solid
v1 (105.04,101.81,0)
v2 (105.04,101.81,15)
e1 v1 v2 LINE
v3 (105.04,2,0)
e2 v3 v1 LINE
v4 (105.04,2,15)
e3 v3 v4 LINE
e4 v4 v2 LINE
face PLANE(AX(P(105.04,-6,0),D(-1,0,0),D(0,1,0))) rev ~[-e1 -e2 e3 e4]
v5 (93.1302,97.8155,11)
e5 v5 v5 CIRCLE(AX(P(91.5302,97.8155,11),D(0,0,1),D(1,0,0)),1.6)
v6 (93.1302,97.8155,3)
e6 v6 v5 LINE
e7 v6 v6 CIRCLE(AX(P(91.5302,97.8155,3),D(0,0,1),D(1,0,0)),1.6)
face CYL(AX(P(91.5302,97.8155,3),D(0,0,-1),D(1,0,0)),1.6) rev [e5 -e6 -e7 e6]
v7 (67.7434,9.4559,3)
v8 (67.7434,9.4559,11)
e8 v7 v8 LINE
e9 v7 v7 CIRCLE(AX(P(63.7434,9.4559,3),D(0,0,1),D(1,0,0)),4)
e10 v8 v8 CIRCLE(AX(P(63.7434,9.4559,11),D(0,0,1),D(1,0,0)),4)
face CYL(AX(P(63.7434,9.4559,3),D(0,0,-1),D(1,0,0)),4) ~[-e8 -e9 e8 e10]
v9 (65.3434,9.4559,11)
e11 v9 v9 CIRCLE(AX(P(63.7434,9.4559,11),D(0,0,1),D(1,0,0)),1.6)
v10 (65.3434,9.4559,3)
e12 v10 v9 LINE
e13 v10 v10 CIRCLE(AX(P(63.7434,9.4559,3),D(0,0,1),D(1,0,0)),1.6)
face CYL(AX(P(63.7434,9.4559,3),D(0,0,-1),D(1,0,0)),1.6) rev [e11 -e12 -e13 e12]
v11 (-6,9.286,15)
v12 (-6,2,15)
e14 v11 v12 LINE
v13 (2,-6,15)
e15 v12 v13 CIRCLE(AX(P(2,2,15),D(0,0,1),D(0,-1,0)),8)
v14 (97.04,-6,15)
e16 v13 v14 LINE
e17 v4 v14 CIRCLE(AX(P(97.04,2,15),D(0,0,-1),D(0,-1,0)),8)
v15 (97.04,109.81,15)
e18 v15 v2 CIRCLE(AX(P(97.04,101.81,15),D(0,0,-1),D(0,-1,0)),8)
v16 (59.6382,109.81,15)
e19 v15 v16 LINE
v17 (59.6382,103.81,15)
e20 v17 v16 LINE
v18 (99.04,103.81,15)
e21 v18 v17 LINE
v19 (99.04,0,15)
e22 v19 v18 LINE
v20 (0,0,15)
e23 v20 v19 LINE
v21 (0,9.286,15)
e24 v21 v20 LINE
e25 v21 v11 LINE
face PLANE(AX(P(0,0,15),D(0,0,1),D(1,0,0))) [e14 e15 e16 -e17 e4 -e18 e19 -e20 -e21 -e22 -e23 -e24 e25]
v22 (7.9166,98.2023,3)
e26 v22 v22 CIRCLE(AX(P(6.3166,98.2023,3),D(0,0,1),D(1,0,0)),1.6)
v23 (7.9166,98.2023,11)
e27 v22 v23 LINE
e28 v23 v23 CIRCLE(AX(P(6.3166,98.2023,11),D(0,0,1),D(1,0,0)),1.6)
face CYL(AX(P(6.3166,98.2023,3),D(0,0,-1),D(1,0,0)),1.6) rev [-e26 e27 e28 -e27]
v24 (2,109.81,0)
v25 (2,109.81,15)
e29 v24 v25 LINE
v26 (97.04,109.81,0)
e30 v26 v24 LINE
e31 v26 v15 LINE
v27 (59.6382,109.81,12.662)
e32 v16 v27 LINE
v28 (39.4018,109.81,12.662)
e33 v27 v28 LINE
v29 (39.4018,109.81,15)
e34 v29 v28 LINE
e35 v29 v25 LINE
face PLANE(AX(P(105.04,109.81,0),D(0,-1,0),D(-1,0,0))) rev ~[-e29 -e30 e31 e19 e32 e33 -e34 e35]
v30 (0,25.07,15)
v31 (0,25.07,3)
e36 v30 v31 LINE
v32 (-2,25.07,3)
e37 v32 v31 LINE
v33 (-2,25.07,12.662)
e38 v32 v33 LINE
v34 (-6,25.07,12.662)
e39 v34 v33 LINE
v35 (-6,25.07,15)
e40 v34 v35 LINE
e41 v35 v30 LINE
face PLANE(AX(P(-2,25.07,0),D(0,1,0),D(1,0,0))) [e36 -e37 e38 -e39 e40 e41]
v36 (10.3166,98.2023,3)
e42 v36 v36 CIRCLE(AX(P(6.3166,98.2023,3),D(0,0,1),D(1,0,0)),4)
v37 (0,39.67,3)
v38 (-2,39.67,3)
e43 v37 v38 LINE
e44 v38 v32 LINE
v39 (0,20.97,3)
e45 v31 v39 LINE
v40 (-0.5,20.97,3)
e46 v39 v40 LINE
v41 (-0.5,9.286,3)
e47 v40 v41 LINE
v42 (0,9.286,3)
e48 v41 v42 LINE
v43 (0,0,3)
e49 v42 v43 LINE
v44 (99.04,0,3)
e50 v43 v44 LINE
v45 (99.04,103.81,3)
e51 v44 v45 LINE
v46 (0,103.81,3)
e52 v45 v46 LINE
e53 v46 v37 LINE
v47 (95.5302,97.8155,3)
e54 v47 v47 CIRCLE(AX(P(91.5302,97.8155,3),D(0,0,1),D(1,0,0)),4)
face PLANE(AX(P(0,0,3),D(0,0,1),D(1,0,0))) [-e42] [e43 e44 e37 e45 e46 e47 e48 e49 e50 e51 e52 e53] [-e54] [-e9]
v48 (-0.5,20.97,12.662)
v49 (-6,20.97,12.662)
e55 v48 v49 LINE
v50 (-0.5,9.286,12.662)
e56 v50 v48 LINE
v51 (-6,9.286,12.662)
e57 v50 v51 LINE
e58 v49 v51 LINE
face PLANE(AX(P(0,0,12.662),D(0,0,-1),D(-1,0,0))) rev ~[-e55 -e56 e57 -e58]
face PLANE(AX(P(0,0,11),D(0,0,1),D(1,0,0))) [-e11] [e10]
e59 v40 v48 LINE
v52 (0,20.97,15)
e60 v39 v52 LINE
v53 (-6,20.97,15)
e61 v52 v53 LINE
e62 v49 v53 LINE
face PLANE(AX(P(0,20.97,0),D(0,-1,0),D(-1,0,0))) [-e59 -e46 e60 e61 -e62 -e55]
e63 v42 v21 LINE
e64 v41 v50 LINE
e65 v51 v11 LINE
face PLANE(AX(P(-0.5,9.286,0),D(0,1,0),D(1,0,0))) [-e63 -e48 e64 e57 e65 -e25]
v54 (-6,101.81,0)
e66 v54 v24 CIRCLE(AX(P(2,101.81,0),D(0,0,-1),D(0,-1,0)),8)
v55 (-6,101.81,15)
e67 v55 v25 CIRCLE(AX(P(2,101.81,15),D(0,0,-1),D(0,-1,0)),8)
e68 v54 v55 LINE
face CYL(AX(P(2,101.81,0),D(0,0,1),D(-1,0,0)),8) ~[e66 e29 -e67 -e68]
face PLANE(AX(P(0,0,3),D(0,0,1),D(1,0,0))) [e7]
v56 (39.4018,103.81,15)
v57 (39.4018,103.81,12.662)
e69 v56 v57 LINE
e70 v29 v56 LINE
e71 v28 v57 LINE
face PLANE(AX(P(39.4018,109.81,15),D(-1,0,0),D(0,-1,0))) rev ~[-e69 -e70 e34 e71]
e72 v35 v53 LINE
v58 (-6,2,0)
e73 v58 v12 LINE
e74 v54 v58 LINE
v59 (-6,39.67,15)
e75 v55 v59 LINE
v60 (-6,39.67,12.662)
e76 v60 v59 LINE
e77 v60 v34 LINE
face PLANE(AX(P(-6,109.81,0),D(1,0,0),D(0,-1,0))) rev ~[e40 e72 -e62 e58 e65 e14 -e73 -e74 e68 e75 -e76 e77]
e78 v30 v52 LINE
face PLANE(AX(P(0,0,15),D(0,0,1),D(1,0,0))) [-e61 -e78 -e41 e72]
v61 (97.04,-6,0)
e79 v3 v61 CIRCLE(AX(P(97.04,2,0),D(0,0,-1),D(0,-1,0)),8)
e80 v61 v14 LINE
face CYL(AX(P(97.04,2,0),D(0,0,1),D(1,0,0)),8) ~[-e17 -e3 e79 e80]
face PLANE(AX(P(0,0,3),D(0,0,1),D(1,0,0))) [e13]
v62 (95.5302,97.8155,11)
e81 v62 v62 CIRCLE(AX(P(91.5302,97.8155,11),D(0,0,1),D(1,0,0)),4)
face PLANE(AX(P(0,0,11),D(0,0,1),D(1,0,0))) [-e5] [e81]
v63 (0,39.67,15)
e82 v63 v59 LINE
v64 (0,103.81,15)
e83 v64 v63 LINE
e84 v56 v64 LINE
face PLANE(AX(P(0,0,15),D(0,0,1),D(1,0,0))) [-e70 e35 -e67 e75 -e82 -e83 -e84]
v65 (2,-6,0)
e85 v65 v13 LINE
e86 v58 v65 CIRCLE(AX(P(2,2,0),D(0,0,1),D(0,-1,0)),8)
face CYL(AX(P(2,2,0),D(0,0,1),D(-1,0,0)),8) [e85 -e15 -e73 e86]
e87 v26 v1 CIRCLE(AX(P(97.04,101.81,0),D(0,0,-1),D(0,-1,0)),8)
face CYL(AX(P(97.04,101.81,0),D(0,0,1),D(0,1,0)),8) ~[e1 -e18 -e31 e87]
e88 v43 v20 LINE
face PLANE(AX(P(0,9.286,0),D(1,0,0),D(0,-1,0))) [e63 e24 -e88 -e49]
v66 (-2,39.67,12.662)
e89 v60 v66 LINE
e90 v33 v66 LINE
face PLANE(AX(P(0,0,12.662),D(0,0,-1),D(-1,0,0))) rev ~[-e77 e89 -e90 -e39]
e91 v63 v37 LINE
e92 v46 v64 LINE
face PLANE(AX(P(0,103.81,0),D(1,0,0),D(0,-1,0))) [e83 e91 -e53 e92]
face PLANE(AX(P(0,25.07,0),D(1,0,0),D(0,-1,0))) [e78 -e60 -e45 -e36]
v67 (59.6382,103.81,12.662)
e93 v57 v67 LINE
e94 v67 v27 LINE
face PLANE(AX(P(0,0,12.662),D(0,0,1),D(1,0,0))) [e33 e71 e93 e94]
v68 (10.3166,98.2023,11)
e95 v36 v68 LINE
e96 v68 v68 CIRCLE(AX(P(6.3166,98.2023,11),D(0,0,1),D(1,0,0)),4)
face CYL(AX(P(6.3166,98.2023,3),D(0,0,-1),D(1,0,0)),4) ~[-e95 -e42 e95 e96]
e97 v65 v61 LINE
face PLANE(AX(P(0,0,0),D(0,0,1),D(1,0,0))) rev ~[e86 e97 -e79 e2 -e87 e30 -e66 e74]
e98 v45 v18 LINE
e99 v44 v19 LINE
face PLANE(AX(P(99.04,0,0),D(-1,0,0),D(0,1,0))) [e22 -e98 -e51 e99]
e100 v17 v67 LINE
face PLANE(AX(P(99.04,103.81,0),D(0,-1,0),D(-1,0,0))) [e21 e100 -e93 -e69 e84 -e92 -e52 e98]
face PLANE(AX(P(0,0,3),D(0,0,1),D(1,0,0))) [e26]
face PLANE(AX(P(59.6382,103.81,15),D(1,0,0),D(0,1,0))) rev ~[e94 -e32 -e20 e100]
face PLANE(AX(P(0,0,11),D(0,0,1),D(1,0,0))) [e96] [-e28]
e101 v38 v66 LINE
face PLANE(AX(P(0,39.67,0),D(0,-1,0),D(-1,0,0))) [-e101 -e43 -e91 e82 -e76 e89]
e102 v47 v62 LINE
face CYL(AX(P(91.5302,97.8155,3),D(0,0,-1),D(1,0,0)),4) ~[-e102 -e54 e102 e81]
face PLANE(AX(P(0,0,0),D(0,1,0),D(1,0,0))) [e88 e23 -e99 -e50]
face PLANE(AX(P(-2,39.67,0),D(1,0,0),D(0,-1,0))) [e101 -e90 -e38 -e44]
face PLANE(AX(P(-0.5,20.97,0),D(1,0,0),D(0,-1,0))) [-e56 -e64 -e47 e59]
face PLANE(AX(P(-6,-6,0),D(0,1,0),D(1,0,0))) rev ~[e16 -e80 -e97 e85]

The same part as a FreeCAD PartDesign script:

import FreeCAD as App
import Part
import Sketcher

V = App.Vector
Q = App.Units.Quantity


def edges_at(feature, points):
    """Names of the edges that pass closest to the given points."""
    edges = feature.Shape.Edges
    near = lambda p: min(range(len(edges)), key=lambda i: edges[i].distToShape(Part.Vertex(*p))[0])
    return sorted({f"Edge{near(p) + 1}" for p in points})

doc = App.newDocument("Part")
body = doc.addObject("PartDesign::Body", "Body")

# Sketch on XY plane
sketch1 = body.newObject("Sketcher::SketchObject", "Sketch")
sketch1.AttachmentSupport = (doc.getObject("XY_Plane"), [""])
sketch1.MapMode = "FlatFace"
sketch1.addGeometry(Part.LineSegment(V(105, 109.8, 0), V(-6, 109.8, 0)), False)
sketch1.addGeometry(Part.LineSegment(V(-6, 109.8, 0), V(-6, -6, 0)), False)
sketch1.addGeometry(Part.LineSegment(V(-6, -6, 0), V(105, -6, 0)), False)
sketch1.addGeometry(Part.LineSegment(V(105, -6, 0), V(105, 109.8, 0)), False)
sketch1.addGeometry(Part.LineSegment(V(0, 39.7, 0), V(0, 103.8, 0)), False)
sketch1.addGeometry(Part.LineSegment(V(0, 103.8, 0), V(99, 103.8, 0)), False)
sketch1.addGeometry(Part.LineSegment(V(99, 103.8, 0), V(99, 0, 0)), False)
sketch1.addGeometry(Part.LineSegment(V(99, 0, 0), V(0, 0, 0)), False)
sketch1.addGeometry(Part.LineSegment(V(0, 0, 0), V(0, 9.3, 0)), False)
sketch1.addGeometry(Part.LineSegment(V(0, 9.3, 0), V(-0.5, 9.3, 0)), False)
sketch1.addGeometry(Part.LineSegment(V(-0.5, 9.3, 0), V(-0.5, 21, 0)), False)
sketch1.addGeometry(Part.LineSegment(V(-0.5, 21, 0), V(0, 21, 0)), False)
sketch1.addGeometry(Part.LineSegment(V(0, 21, 0), V(0, 25.1, 0)), False)
sketch1.addGeometry(Part.LineSegment(V(0, 25.1, 0), V(-2, 25.1, 0)), False)
sketch1.addGeometry(Part.LineSegment(V(-2, 25.1, 0), V(-2, 39.7, 0)), False)
sketch1.addGeometry(Part.LineSegment(V(-2, 39.7, 0), V(0, 39.7, 0)), False)
sketch1.addConstraint(Sketcher.Constraint("Coincident", 0, 2, 1, 1))
sketch1.addConstraint(Sketcher.Constraint("Coincident", 1, 2, 2, 1))
sketch1.addConstraint(Sketcher.Constraint("Coincident", 2, 2, 3, 1))
sketch1.addConstraint(Sketcher.Constraint("Coincident", 3, 2, 0, 1))
sketch1.addConstraint(Sketcher.Constraint("Coincident", 4, 2, 5, 1))
sketch1.addConstraint(Sketcher.Constraint("Coincident", 5, 2, 6, 1))
sketch1.addConstraint(Sketcher.Constraint("Coincident", 6, 2, 7, 1))
sketch1.addConstraint(Sketcher.Constraint("Coincident", 7, 2, 8, 1))
sketch1.addConstraint(Sketcher.Constraint("Coincident", 8, 2, 9, 1))
sketch1.addConstraint(Sketcher.Constraint("Coincident", 9, 2, 10, 1))
sketch1.addConstraint(Sketcher.Constraint("Coincident", 10, 2, 11, 1))
sketch1.addConstraint(Sketcher.Constraint("Coincident", 11, 2, 12, 1))
sketch1.addConstraint(Sketcher.Constraint("Coincident", 12, 2, 13, 1))
sketch1.addConstraint(Sketcher.Constraint("Coincident", 13, 2, 14, 1))
sketch1.addConstraint(Sketcher.Constraint("Coincident", 14, 2, 15, 1))
sketch1.addConstraint(Sketcher.Constraint("Coincident", 15, 2, 4, 1))
sketch1.addConstraint(Sketcher.Constraint("Horizontal", 0))
sketch1.addConstraint(Sketcher.Constraint("Vertical", 1))
sketch1.addConstraint(Sketcher.Constraint("Horizontal", 2))
sketch1.addConstraint(Sketcher.Constraint("Vertical", 3))
sketch1.addConstraint(Sketcher.Constraint("Vertical", 4))
sketch1.addConstraint(Sketcher.Constraint("Horizontal", 5))
sketch1.addConstraint(Sketcher.Constraint("Vertical", 6))
sketch1.addConstraint(Sketcher.Constraint("Horizontal", 7))
sketch1.addConstraint(Sketcher.Constraint("Vertical", 8))
sketch1.addConstraint(Sketcher.Constraint("Horizontal", 9))
sketch1.addConstraint(Sketcher.Constraint("Vertical", 10))
sketch1.addConstraint(Sketcher.Constraint("Horizontal", 11))
sketch1.addConstraint(Sketcher.Constraint("Vertical", 12))
sketch1.addConstraint(Sketcher.Constraint("Horizontal", 13))
sketch1.addConstraint(Sketcher.Constraint("Vertical", 14))
sketch1.addConstraint(Sketcher.Constraint("Horizontal", 15))
sketch1.addConstraint(Sketcher.Constraint("Coincident", 7, 2, -1, 1))
sketch1.addConstraint(Sketcher.Constraint("PointOnObject", 4, 2, -2))
sketch1.addConstraint(Sketcher.Constraint("PointOnObject", 11, 2, -2))
sketch1.addConstraint(Sketcher.Constraint("DistanceX", 13, 2, 13, 1, Q("2 mm")))
sketch1.addConstraint(Sketcher.Constraint("DistanceX", 9, 2, 9, 1, Q("0.5 mm")))
sketch1.addConstraint(Sketcher.Constraint("DistanceY", 12, 1, 12, 2, Q("4.1 mm")))
sketch1.addConstraint(Sketcher.Constraint("DistanceY", 14, 1, 14, 2, Q("14.6 mm")))
sketch1.addConstraint(Sketcher.Constraint("DistanceX", 0, 2, -1, 1, Q("6 mm")))
sketch1.addConstraint(Sketcher.Constraint("DistanceY", 1, 2, -1, 1, Q("6 mm")))
sketch1.addConstraint(Sketcher.Constraint("DistanceY", 4, 2, 0, 2, Q("6 mm")))
sketch1.addConstraint(Sketcher.Constraint("DistanceX", 5, 2, 3, 2, Q("6 mm")))
sketch1.addConstraint(Sketcher.Constraint("DistanceX", 0, 2, 0, 1, Q("111.04 mm")))
sketch1.addConstraint(Sketcher.Constraint("DistanceY", 1, 2, 1, 1, Q("115.81 mm")))
sketch1.addConstraint(Sketcher.Constraint("DistanceY", 4, 1, 4, 2, Q("64.14 mm")))
sketch1.addConstraint(Sketcher.Constraint("DistanceY", 8, 1, 8, 2, Q("9.286 mm")))
pad1 = body.newObject("PartDesign::Pad", "Pad")
pad1.Profile = sketch1
pad1.Length = 15

# Sketch on XY plane
sketch2 = body.newObject("Sketcher::SketchObject", "Sketch001")
sketch2.AttachmentSupport = (doc.getObject("XY_Plane"), [""])
sketch2.MapMode = "FlatFace"
sketch2.addGeometry(Part.LineSegment(V(99, 103.8, 0), V(0, 103.8, 0)), False)
sketch2.addGeometry(Part.LineSegment(V(0, 103.8, 0), V(0, 39.7, 0)), False)
sketch2.addGeometry(Part.LineSegment(V(0, 39.7, 0), V(-2, 39.7, 0)), False)
sketch2.addGeometry(Part.LineSegment(V(-2, 39.7, 0), V(-2, 25.1, 0)), False)
sketch2.addGeometry(Part.LineSegment(V(-2, 25.1, 0), V(0, 25.1, 0)), False)
sketch2.addGeometry(Part.LineSegment(V(0, 25.1, 0), V(0, 21, 0)), False)
sketch2.addGeometry(Part.LineSegment(V(0, 21, 0), V(-0.5, 21, 0)), False)
sketch2.addGeometry(Part.LineSegment(V(-0.5, 21, 0), V(-0.5, 9.3, 0)), False)
sketch2.addGeometry(Part.LineSegment(V(-0.5, 9.3, 0), V(0, 9.3, 0)), False)
sketch2.addGeometry(Part.LineSegment(V(0, 9.3, 0), V(0, 0, 0)), False)
sketch2.addGeometry(Part.LineSegment(V(0, 0, 0), V(99, 0, 0)), False)
sketch2.addGeometry(Part.LineSegment(V(99, 0, 0), V(99, 103.8, 0)), False)
sketch2.addConstraint(Sketcher.Constraint("Coincident", 0, 2, 1, 1))
sketch2.addConstraint(Sketcher.Constraint("Coincident", 1, 2, 2, 1))
sketch2.addConstraint(Sketcher.Constraint("Coincident", 2, 2, 3, 1))
sketch2.addConstraint(Sketcher.Constraint("Coincident", 3, 2, 4, 1))
sketch2.addConstraint(Sketcher.Constraint("Coincident", 4, 2, 5, 1))
sketch2.addConstraint(Sketcher.Constraint("Coincident", 5, 2, 6, 1))
sketch2.addConstraint(Sketcher.Constraint("Coincident", 6, 2, 7, 1))
sketch2.addConstraint(Sketcher.Constraint("Coincident", 7, 2, 8, 1))
sketch2.addConstraint(Sketcher.Constraint("Coincident", 8, 2, 9, 1))
sketch2.addConstraint(Sketcher.Constraint("Coincident", 9, 2, 10, 1))
sketch2.addConstraint(Sketcher.Constraint("Coincident", 10, 2, 11, 1))
sketch2.addConstraint(Sketcher.Constraint("Coincident", 11, 2, 0, 1))
sketch2.addConstraint(Sketcher.Constraint("Horizontal", 0))
sketch2.addConstraint(Sketcher.Constraint("Vertical", 1))
sketch2.addConstraint(Sketcher.Constraint("Horizontal", 2))
sketch2.addConstraint(Sketcher.Constraint("Vertical", 3))
sketch2.addConstraint(Sketcher.Constraint("Horizontal", 4))
sketch2.addConstraint(Sketcher.Constraint("Vertical", 5))
sketch2.addConstraint(Sketcher.Constraint("Horizontal", 6))
sketch2.addConstraint(Sketcher.Constraint("Vertical", 7))
sketch2.addConstraint(Sketcher.Constraint("Horizontal", 8))
sketch2.addConstraint(Sketcher.Constraint("Vertical", 9))
sketch2.addConstraint(Sketcher.Constraint("Horizontal", 10))
sketch2.addConstraint(Sketcher.Constraint("Vertical", 11))
sketch2.addConstraint(Sketcher.Constraint("Coincident", 9, 2, -1, 1))
sketch2.addConstraint(Sketcher.Constraint("PointOnObject", 0, 2, -2))
sketch2.addConstraint(Sketcher.Constraint("PointOnObject", 4, 2, -2))
sketch2.addConstraint(Sketcher.Constraint("DistanceX", 2, 2, 2, 1, Q("2 mm")))
sketch2.addConstraint(Sketcher.Constraint("DistanceX", 6, 2, 6, 1, Q("0.5 mm")))
sketch2.addConstraint(Sketcher.Constraint("DistanceY", 3, 2, 3, 1, Q("14.6 mm")))
sketch2.addConstraint(Sketcher.Constraint("DistanceY", 5, 2, 5, 1, Q("4.1 mm")))
sketch2.addConstraint(Sketcher.Constraint("DistanceX", 0, 2, 0, 1, Q("99.04 mm")))
sketch2.addConstraint(Sketcher.Constraint("DistanceY", 1, 2, 1, 1, Q("64.14 mm")))
sketch2.addConstraint(Sketcher.Constraint("DistanceY", 11, 1, 11, 2, Q("103.81 mm")))
sketch2.addConstraint(Sketcher.Constraint("DistanceY", 7, 2, 7, 1, Q("11.684 mm")))
pad2 = body.newObject("PartDesign::Pad", "Pad001")
pad2.Profile = sketch2
pad2.Length = 3

# Sketch on XY plane
sketch3 = body.newObject("Sketcher::SketchObject", "Sketch002")
sketch3.AttachmentSupport = (doc.getObject("XY_Plane"), [""])
sketch3.MapMode = "FlatFace"
sketch3.AttachmentOffset = App.Placement(V(0, 0, 3), App.Rotation())
sketch3.addGeometry(Part.Circle(V(6.3, 98.2, 0), V(0, 0, 1), 4), False)
sketch3.addGeometry(Part.Circle(V(6.3, 98.2, 0), V(0, 0, 1), 1.6), False)
sketch3.addGeometry(Part.Circle(V(91.5, 97.8, 0), V(0, 0, 1), 4), False)
sketch3.addGeometry(Part.Circle(V(91.5, 97.8, 0), V(0, 0, 1), 1.6), False)
sketch3.addGeometry(Part.Circle(V(63.7, 9.5, 0), V(0, 0, 1), 4), False)
sketch3.addGeometry(Part.Circle(V(63.7, 9.5, 0), V(0, 0, 1), 1.6), False)
sketch3.addConstraint(Sketcher.Constraint("Coincident", 1, 3, 0, 3))
sketch3.addConstraint(Sketcher.Constraint("Coincident", 3, 3, 2, 3))
sketch3.addConstraint(Sketcher.Constraint("Coincident", 5, 3, 4, 3))
sketch3.addConstraint(Sketcher.Constraint("Equal", 0, 2))
sketch3.addConstraint(Sketcher.Constraint("Equal", 1, 3))
sketch3.addConstraint(Sketcher.Constraint("Equal", 2, 4))
sketch3.addConstraint(Sketcher.Constraint("Equal", 3, 5))
sketch3.addConstraint(Sketcher.Constraint("Diameter", 0, Q("8 mm")))
sketch3.addConstraint(Sketcher.Constraint("Diameter", 1, Q("3.2 mm")))
sketch3.addConstraint(Sketcher.Constraint("DistanceY", -1, 1, 4, 3, Q("9.456 mm")))
sketch3.addConstraint(Sketcher.Constraint("DistanceX", -1, 1, 0, 3, Q("6.3166 mm")))
sketch3.addConstraint(Sketcher.Constraint("DistanceY", -1, 1, 0, 3, Q("98.2023 mm")))
sketch3.addConstraint(Sketcher.Constraint("DistanceX", -1, 1, 2, 3, Q("91.5302 mm")))
sketch3.addConstraint(Sketcher.Constraint("DistanceY", -1, 1, 2, 3, Q("97.8155 mm")))
sketch3.addConstraint(Sketcher.Constraint("DistanceX", -1, 1, 4, 3, Q("63.7434 mm")))
pad3 = body.newObject("PartDesign::Pad", "Pad002")
pad3.Profile = sketch3
pad3.Length = 8

# Sketch on XY plane
sketch4 = body.newObject("Sketcher::SketchObject", "Sketch003")
sketch4.AttachmentSupport = (doc.getObject("XY_Plane"), [""])
sketch4.MapMode = "FlatFace"
sketch4.AttachmentOffset = App.Placement(V(0, 0, 12.662), App.Rotation())
sketch4.addGeometry(Part.LineSegment(V(0, 25, 0), V(-6, 25, 0)), False)
sketch4.addGeometry(Part.LineSegment(V(-6, 25, 0), V(-6, 40, 0)), False)
sketch4.addGeometry(Part.LineSegment(V(-6, 40, 0), V(0, 40, 0)), False)
sketch4.addGeometry(Part.LineSegment(V(0, 40, 0), V(0, 25, 0)), False)
sketch4.addGeometry(Part.LineSegment(V(-6, 9, 0), V(-6, 21, 0)), False)
sketch4.addGeometry(Part.LineSegment(V(-6, 21, 0), V(0, 21, 0)), False)
sketch4.addGeometry(Part.LineSegment(V(0, 21, 0), V(0, 9, 0)), False)
sketch4.addGeometry(Part.LineSegment(V(0, 9, 0), V(-6, 9, 0)), False)
sketch4.addConstraint(Sketcher.Constraint("Coincident", 0, 2, 1, 1))
sketch4.addConstraint(Sketcher.Constraint("Coincident", 1, 2, 2, 1))
sketch4.addConstraint(Sketcher.Constraint("Coincident", 2, 2, 3, 1))
sketch4.addConstraint(Sketcher.Constraint("Coincident", 3, 2, 0, 1))
sketch4.addConstraint(Sketcher.Constraint("Coincident", 4, 2, 5, 1))
sketch4.addConstraint(Sketcher.Constraint("Coincident", 5, 2, 6, 1))
sketch4.addConstraint(Sketcher.Constraint("Coincident", 6, 2, 7, 1))
sketch4.addConstraint(Sketcher.Constraint("Coincident", 7, 2, 4, 1))
sketch4.addConstraint(Sketcher.Constraint("Horizontal", 0))
sketch4.addConstraint(Sketcher.Constraint("Vertical", 1))
sketch4.addConstraint(Sketcher.Constraint("Horizontal", 2))
sketch4.addConstraint(Sketcher.Constraint("Vertical", 3))
sketch4.addConstraint(Sketcher.Constraint("Vertical", 4))
sketch4.addConstraint(Sketcher.Constraint("Horizontal", 5))
sketch4.addConstraint(Sketcher.Constraint("Vertical", 6))
sketch4.addConstraint(Sketcher.Constraint("Horizontal", 7))
sketch4.addConstraint(Sketcher.Constraint("PointOnObject", 2, 2, -2))
sketch4.addConstraint(Sketcher.Constraint("Vertical", 1, 2, 4, 2))
sketch4.addConstraint(Sketcher.Constraint("DistanceX", 0, 2, 0, 1, Q("6 mm")))
sketch4.addConstraint(Sketcher.Constraint("DistanceX", 5, 1, 5, 2, Q("5.5 mm")))
sketch4.addConstraint(Sketcher.Constraint("DistanceY", 1, 1, 1, 2, Q("14.6 mm")))
sketch4.addConstraint(Sketcher.Constraint("DistanceY", 4, 2, 0, 2, Q("4.1 mm")))
sketch4.addConstraint(Sketcher.Constraint("DistanceY", 4, 1, 4, 2, Q("11.684 mm")))
sketch4.addConstraint(Sketcher.Constraint("DistanceY", -1, 1, 0, 2, Q("25.07 mm")))
pocket1 = body.newObject("PartDesign::Pocket", "Pocket")
pocket1.Profile = sketch4
pocket1.Length = 8
pocket1.Reversed = True
doc.recompute()

fillet = body.newObject("PartDesign::Fillet", "Fillet")
fillet.Base = (pocket1, edges_at(pocket1, [
    (-6, 109.81, 7.5),
    (-6, -6, 7.5),
    (105.04, -6, 7.5),
    (105.04, 109.81, 7.5),
]))
fillet.Radius = 8

# Sketch on XY plane
sketch5 = body.newObject("Sketcher::SketchObject", "Sketch004")
sketch5.AttachmentSupport = (doc.getObject("XY_Plane"), [""])
sketch5.MapMode = "FlatFace"
sketch5.AttachmentOffset = App.Placement(V(0, 0, 15), App.Rotation())
sketch5.addGeometry(Part.LineSegment(V(60, 104, 0), V(60, 110, 0)), False)
sketch5.addGeometry(Part.LineSegment(V(60, 110, 0), V(39, 110, 0)), False)
sketch5.addGeometry(Part.LineSegment(V(39, 110, 0), V(39, 104, 0)), False)
sketch5.addGeometry(Part.LineSegment(V(39, 104, 0), V(60, 104, 0)), False)
sketch5.addConstraint(Sketcher.Constraint("Coincident", 0, 2, 1, 1))
sketch5.addConstraint(Sketcher.Constraint("Coincident", 1, 2, 2, 1))
sketch5.addConstraint(Sketcher.Constraint("Coincident", 2, 2, 3, 1))
sketch5.addConstraint(Sketcher.Constraint("Coincident", 3, 2, 0, 1))
sketch5.addConstraint(Sketcher.Constraint("Vertical", 0))
sketch5.addConstraint(Sketcher.Constraint("Horizontal", 1))
sketch5.addConstraint(Sketcher.Constraint("Vertical", 2))
sketch5.addConstraint(Sketcher.Constraint("Horizontal", 3))
sketch5.addConstraint(Sketcher.Constraint("DistanceY", 0, 1, 0, 2, Q("6 mm")))
sketch5.addConstraint(Sketcher.Constraint("DistanceY", -1, 1, 0, 2, Q("109.81 mm")))
sketch5.addConstraint(Sketcher.Constraint("DistanceX", 1, 2, 1, 1, Q("20.2364 mm")))
sketch5.addConstraint(Sketcher.Constraint("DistanceX", -1, 1, 0, 2, Q("59.6382 mm")))
pocket2 = body.newObject("PartDesign::Pocket", "Pocket001")
pocket2.Profile = sketch5
pocket2.Length = 2.338

doc.recompute()
